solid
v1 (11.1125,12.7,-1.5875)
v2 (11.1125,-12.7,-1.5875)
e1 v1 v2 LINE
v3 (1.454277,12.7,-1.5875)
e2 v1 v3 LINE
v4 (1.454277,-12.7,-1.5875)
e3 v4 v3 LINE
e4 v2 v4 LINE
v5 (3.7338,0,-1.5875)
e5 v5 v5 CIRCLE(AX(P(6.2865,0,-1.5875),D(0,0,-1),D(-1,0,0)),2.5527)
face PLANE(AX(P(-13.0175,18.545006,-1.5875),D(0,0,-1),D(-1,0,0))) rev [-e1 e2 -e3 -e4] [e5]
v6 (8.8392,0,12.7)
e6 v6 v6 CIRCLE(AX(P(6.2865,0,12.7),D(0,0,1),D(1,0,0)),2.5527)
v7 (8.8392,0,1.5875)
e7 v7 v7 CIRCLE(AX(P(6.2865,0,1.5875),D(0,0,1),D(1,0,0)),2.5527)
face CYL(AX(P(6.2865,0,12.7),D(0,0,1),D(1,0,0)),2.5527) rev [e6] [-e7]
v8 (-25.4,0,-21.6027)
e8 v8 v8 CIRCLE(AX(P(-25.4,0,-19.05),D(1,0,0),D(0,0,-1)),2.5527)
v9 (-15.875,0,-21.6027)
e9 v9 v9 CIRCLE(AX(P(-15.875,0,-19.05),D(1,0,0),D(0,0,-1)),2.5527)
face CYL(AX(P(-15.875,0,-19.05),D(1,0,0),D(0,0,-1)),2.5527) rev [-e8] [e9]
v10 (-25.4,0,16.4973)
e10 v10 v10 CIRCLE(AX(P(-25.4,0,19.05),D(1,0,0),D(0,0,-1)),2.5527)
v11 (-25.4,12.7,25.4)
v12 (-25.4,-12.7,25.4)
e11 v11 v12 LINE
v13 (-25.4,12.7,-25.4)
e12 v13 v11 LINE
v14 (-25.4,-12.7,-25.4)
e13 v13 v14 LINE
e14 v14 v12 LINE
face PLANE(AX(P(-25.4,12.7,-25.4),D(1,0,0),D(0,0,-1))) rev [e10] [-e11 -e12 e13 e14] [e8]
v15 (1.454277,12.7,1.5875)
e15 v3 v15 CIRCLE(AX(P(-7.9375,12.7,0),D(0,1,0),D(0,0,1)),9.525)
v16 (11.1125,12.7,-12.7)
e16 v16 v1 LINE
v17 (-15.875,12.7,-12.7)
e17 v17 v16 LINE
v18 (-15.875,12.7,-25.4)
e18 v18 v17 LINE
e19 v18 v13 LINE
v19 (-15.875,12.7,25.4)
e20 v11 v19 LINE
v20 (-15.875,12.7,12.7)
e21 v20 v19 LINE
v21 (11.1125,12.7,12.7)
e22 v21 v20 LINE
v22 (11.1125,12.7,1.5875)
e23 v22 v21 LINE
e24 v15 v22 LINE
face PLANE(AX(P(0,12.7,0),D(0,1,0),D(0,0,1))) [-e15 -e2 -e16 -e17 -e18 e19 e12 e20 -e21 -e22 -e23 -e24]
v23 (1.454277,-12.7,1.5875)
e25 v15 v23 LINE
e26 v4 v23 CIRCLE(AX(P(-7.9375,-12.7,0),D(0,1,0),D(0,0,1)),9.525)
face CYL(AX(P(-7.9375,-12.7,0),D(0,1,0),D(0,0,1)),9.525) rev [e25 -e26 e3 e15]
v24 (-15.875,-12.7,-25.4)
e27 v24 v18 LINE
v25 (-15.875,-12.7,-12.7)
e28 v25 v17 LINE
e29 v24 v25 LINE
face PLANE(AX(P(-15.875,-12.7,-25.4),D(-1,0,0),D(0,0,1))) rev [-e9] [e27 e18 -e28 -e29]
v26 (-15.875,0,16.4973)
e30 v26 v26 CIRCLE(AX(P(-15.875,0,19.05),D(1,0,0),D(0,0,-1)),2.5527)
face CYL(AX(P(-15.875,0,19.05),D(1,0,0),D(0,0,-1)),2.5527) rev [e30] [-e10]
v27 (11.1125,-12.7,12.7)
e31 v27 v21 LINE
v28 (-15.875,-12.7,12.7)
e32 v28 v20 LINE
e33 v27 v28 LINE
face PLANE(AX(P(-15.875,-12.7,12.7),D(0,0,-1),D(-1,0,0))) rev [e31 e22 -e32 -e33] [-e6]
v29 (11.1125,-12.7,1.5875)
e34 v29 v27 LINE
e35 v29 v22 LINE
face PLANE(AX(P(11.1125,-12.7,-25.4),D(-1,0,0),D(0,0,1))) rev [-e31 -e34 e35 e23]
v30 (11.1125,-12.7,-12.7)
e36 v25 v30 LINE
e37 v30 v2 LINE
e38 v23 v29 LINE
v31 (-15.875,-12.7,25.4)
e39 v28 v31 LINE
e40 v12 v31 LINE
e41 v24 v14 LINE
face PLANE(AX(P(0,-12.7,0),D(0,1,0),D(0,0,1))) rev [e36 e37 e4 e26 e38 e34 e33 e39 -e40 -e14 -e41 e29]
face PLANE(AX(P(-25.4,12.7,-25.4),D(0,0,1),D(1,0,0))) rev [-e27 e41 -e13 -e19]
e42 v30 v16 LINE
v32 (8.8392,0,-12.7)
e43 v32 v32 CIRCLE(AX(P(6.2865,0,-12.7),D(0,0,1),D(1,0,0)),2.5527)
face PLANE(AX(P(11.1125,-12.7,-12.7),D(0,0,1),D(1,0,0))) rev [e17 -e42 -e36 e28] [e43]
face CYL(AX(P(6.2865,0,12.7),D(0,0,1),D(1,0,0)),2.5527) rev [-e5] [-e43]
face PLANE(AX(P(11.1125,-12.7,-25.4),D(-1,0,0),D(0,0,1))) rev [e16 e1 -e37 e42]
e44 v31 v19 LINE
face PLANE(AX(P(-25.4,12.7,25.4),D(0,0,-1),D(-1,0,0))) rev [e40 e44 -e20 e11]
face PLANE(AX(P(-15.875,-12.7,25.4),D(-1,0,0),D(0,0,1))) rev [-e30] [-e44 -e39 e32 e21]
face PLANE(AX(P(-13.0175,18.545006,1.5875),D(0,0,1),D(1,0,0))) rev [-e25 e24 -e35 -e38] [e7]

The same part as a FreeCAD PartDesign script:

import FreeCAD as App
import Part
import Sketcher
from FreeCAD import Vector
Q = App.Units.Quantity

doc = App.newDocument("Part")
params = doc.addObject("Spreadsheet::Sheet", "Params")
for row, (alias, value) in enumerate([
    ("sketch1_width", "2 in"),
    ("pad1_length", "1 in"),
    ("sketch2_diameter", "0.75 in"),
    ("sketch3_height", "2 in"),
    ("sketch3_width", "0.5625 in"),
    ("sketch4_height", "0.5 in"),
    ("sketch4_width", "1.0625 in"),
    ("sketch5_diameter", "0.201 in"),
    ("hole_diameter", "0.201 in"),
    ("sketch6_height", "0.125 in"),
    ("pocket4_length", "0.95 in"),
    ("sketch7_diameter", "0.201 in"),
    ("hole2_diameter", "0.201 in"),
], start=1):
    params.set(f"A{row}", alias)
    params.set(f"B{row}", "=" + value)
    params.setAlias(f"B{row}", alias)

body = doc.addObject("PartDesign::Body", "Body")

# Sketch on XZ plane
sketch1 = body.newObject("Sketcher::SketchObject", "Sketch")
sketch1.AttachmentSupport = (doc.getObject("XZ_Plane"), [""])
sketch1.MapMode = "FlatFace"
sketch1.addGeometry([
    Part.LineSegment(Vector(-25, -25, 0), Vector(-25, 25, 0)),
    Part.LineSegment(Vector(-25, 25, 0), Vector(25, 25, 0)),
    Part.LineSegment(Vector(25, 25, 0), Vector(25, -25, 0)),
    Part.LineSegment(Vector(25, -25, 0), Vector(-25, -25, 0)),
], False)
sketch1.addConstraint([
    Sketcher.Constraint("Coincident", 0, 2, 1, 1),
    Sketcher.Constraint("Coincident", 1, 2, 2, 1),
    Sketcher.Constraint("Coincident", 2, 2, 3, 1),
    Sketcher.Constraint("Coincident", 3, 2, 0, 1),
    Sketcher.Constraint("Vertical", 0),
    Sketcher.Constraint("Horizontal", 1),
    Sketcher.Constraint("Vertical", 2),
    Sketcher.Constraint("Horizontal", 3),
    Sketcher.Constraint("Symmetric", 0, 2, 2, 2, -1, 1),
    Sketcher.Constraint("Equal", 3, 0),
    Sketcher.Constraint("DistanceX", 1, 1, 1, 2, Q("2 in")),
])
sketch1.setExpression("Constraints[10]", "Params.sketch1_width")
pad1 = body.newObject("PartDesign::Pad", "Pad")
pad1.Profile = sketch1
pad1.setExpression("Length", "Params.pad1_length")
pad1.Midplane = True

# Sketch on XZ plane
sketch2 = body.newObject("Sketcher::SketchObject", "Sketch001")
sketch2.AttachmentSupport = (doc.getObject("XZ_Plane"), [""])
sketch2.MapMode = "FlatFace"
sketch2.AttachmentOffset = App.Placement(Vector(0, 0, -0.5 * 25.4), App.Rotation())
sketch2.addGeometry(Part.Circle(Vector(-8, 0, 0), Vector(0, 0, 1), 10), False)
sketch2.addConstraint([
    Sketcher.Constraint("PointOnObject", 0, 3, -1),
    Sketcher.Constraint("Diameter", 0, Q("0.75 in")),
    Sketcher.Constraint("DistanceX", 0, 3, -1, 1, Q("0.3125 in")),
])
sketch2.setExpression("Constraints[1]", "Params.sketch2_diameter")
pocket1 = body.newObject("PartDesign::Pocket", "Pocket")
pocket1.Profile = sketch2
pocket1.Type = "ThroughAll"
pocket1.Reversed = True

# Sketch on XZ plane
sketch3 = body.newObject("Sketcher::SketchObject", "Sketch002")
sketch3.AttachmentSupport = (doc.getObject("XZ_Plane"), [""])
sketch3.MapMode = "FlatFace"
sketch3.AttachmentOffset = App.Placement(Vector(0, 0, -0.5 * 25.4), App.Rotation())
sketch3.addGeometry([
    Part.LineSegment(Vector(11, -25, 0), Vector(11, 25, 0)),
    Part.LineSegment(Vector(11, 25, 0), Vector(25, 25, 0)),
    Part.LineSegment(Vector(25, 25, 0), Vector(25, -25, 0)),
    Part.LineSegment(Vector(25, -25, 0), Vector(11, -25, 0)),
], False)
sketch3.addConstraint([
    Sketcher.Constraint("Coincident", 0, 2, 1, 1),
    Sketcher.Constraint("Coincident", 1, 2, 2, 1),
    Sketcher.Constraint("Coincident", 2, 2, 3, 1),
    Sketcher.Constraint("Coincident", 3, 2, 0, 1),
    Sketcher.Constraint("Vertical", 0),
    Sketcher.Constraint("Horizontal", 1),
    Sketcher.Constraint("Vertical", 2),
    Sketcher.Constraint("Horizontal", 3),
    Sketcher.Constraint("DistanceY", 0, 1, 0, 2, Q("2 in")),
    Sketcher.Constraint("DistanceY", -1, 1, 0, 2, Q("1 in")),
    Sketcher.Constraint("DistanceX", -1, 1, 1, 2, Q("1 in")),
    Sketcher.Constraint("DistanceX", 1, 1, 1, 2, Q("0.5625 in")),
])
sketch3.setExpression("Constraints[8]", "Params.sketch3_height")
sketch3.setExpression("Constraints[11]", "Params.sketch3_width")
pocket2 = body.newObject("PartDesign::Pocket", "Pocket001")
pocket2.Profile = sketch3
pocket2.Type = "ThroughAll"
pocket2.Reversed = True

# Sketch on XZ plane
sketch4 = body.newObject("Sketcher::SketchObject", "Sketch003")
sketch4.AttachmentSupport = (doc.getObject("XZ_Plane"), [""])
sketch4.MapMode = "FlatFace"
sketch4.AttachmentOffset = App.Placement(Vector(0, 0, -0.5 * 25.4), App.Rotation())
sketch4.addGeometry([
    Part.LineSegment(Vector(-16, -25, 0), Vector(-16, -13, 0)),  # 0
    Part.LineSegment(Vector(-16, -13, 0), Vector(11, -13, 0)),  # 1
    Part.LineSegment(Vector(11, -13, 0), Vector(11, -25, 0)),  # 2
    Part.LineSegment(Vector(11, -25, 0), Vector(-16, -25, 0)),  # 3
    Part.LineSegment(Vector(-16, 13, 0), Vector(-16, 25, 0)),  # 4
    Part.LineSegment(Vector(-16, 25, 0), Vector(11, 25, 0)),  # 5
    Part.LineSegment(Vector(11, 25, 0), Vector(11, 13, 0)),  # 6
    Part.LineSegment(Vector(11, 13, 0), Vector(-16, 13, 0)),  # 7
], False)
sketch4.addConstraint([
    Sketcher.Constraint("Coincident", 0, 2, 1, 1),
    Sketcher.Constraint("Coincident", 1, 2, 2, 1),
    Sketcher.Constraint("Coincident", 2, 2, 3, 1),
    Sketcher.Constraint("Coincident", 3, 2, 0, 1),
    Sketcher.Constraint("Coincident", 4, 2, 5, 1),
    Sketcher.Constraint("Coincident", 5, 2, 6, 1),
    Sketcher.Constraint("Coincident", 6, 2, 7, 1),
    Sketcher.Constraint("Coincident", 7, 2, 4, 1),
    Sketcher.Constraint("Vertical", 0),
    Sketcher.Constraint("Horizontal", 1),
    Sketcher.Constraint("Vertical", 2),
    Sketcher.Constraint("Horizontal", 3),
    Sketcher.Constraint("Vertical", 4),
    Sketcher.Constraint("Horizontal", 5),
    Sketcher.Constraint("Vertical", 6),
    Sketcher.Constraint("Horizontal", 7),
    Sketcher.Constraint("Symmetric", 3, 2, 4, 2, -1),
    Sketcher.Constraint("Symmetric", 1, 2, 6, 2, -1),
    Sketcher.Constraint("DistanceY", 0, 1, 0, 2, Q("0.5 in")),
    Sketcher.Constraint("DistanceY", 2, 2, -1, 1, Q("1 in")),
    Sketcher.Constraint("DistanceX", 1, 1, 1, 2, Q("1.0625 in")),
    Sketcher.Constraint("DistanceX", 0, 2, -1, 1, Q("0.625 in")),
])
sketch4.setExpression("Constraints[18]", "Params.sketch4_height")
sketch4.setExpression("Constraints[20]", "Params.sketch4_width")
pocket3 = body.newObject("PartDesign::Pocket", "Pocket002")
pocket3.Profile = sketch4
pocket3.Type = "ThroughAll"
pocket3.Reversed = True

# Sketch on YZ plane
sketch5 = body.newObject("Sketcher::SketchObject", "Sketch004")
sketch5.AttachmentSupport = (doc.getObject("YZ_Plane"), [""])
sketch5.MapMode = "FlatFace"
sketch5.AttachmentOffset = App.Placement(Vector(0, 0, -0.625 * 25.4), App.Rotation())
sketch5.addGeometry([
    Part.Circle(Vector(0, 19.1, 0), Vector(0, 0, 1), 2.6),
    Part.Circle(Vector(0, -19.1, 0), Vector(0, 0, 1), 2.6),
], False)
sketch5.addConstraint([
    Sketcher.Constraint("Equal", 0, 1),
    Sketcher.Constraint("Symmetric", 0, 3, 1, 3, -1, 1),
    Sketcher.Constraint("PointOnObject", 0, 3, -2),
    Sketcher.Constraint("Diameter", 0, Q("0.201 in")),
    Sketcher.Constraint("DistanceY", 1, 3, 0, 3, Q("1.5 in")),
])
sketch5.setExpression("Constraints[3]", "Params.sketch5_diameter")
doc.recompute()
hole = body.newObject("PartDesign::Hole", "Hole")
hole.Profile = sketch5
hole.ThreadType = "None"
hole.setExpression("Diameter", "Params.hole_diameter")
hole.DepthType = "ThroughAll"

# Sketch on YZ plane
sketch6 = body.newObject("Sketcher::SketchObject", "Sketch005")
sketch6.AttachmentSupport = (doc.getObject("YZ_Plane"), [""])
sketch6.MapMode = "FlatFace"
sketch6.AttachmentOffset = App.Placement(Vector(0, 0, 0.4375 * 25.4), App.Rotation())
sketch6.addGeometry([
    Part.LineSegment(Vector(18.5, 1.6, 0), Vector(-18.5, 1.6, 0)),
    Part.LineSegment(Vector(-18.5, 1.6, 0), Vector(-18.5, -1.6, 0)),
    Part.LineSegment(Vector(-18.5, -1.6, 0), Vector(18.5, -1.6, 0)),
    Part.LineSegment(Vector(18.5, -1.6, 0), Vector(18.5, 1.6, 0)),
], False)
sketch6.addConstraint([
    Sketcher.Constraint("Coincident", 0, 2, 1, 1),
    Sketcher.Constraint("Coincident", 1, 2, 2, 1),
    Sketcher.Constraint("Coincident", 2, 2, 3, 1),
    Sketcher.Constraint("Coincident", 3, 2, 0, 1),
    Sketcher.Constraint("Horizontal", 0),
    Sketcher.Constraint("Vertical", 1),
    Sketcher.Constraint("Horizontal", 2),
    Sketcher.Constraint("Vertical", 3),
    Sketcher.Constraint("Symmetric", 0, 2, 2, 2, -1, 1),
    Sketcher.Constraint("DistanceY", 1, 2, 1, 1, Q("0.125 in")),
    Sketcher.Constraint("DistanceX", 0, 2, 0, 1, Q("37.090013 mm")),
])
sketch6.setExpression("Constraints[9]", "Params.sketch6_height")
pocket4 = body.newObject("PartDesign::Pocket", "Pocket003")
pocket4.Profile = sketch6
pocket4.setExpression("Length", "Params.pocket4_length")

# Sketch on XY plane
sketch7 = body.newObject("Sketcher::SketchObject", "Sketch006")
sketch7.AttachmentSupport = (doc.getObject("XY_Plane"), [""])
sketch7.MapMode = "FlatFace"
sketch7.AttachmentOffset = App.Placement(Vector(0, 0, 0.5 * 25.4), App.Rotation())
sketch7.addGeometry(Part.Circle(Vector(6.3, 0, 0), Vector(0, 0, 1), 2.6), False)
sketch7.addConstraint([
    Sketcher.Constraint("PointOnObject", 0, 3, -1),
    Sketcher.Constraint("Diameter", 0, Q("0.201 in")),
    Sketcher.Constraint("DistanceX", -1, 1, 0, 3, Q("0.2475 in")),
])
sketch7.setExpression("Constraints[1]", "Params.sketch7_diameter")
doc.recompute()
hole2 = body.newObject("PartDesign::Hole", "Hole001")
hole2.Profile = sketch7
hole2.ThreadType = "None"
hole2.setExpression("Diameter", "Params.hole2_diameter")
hole2.DepthType = "ThroughAll"

doc.recompute()
